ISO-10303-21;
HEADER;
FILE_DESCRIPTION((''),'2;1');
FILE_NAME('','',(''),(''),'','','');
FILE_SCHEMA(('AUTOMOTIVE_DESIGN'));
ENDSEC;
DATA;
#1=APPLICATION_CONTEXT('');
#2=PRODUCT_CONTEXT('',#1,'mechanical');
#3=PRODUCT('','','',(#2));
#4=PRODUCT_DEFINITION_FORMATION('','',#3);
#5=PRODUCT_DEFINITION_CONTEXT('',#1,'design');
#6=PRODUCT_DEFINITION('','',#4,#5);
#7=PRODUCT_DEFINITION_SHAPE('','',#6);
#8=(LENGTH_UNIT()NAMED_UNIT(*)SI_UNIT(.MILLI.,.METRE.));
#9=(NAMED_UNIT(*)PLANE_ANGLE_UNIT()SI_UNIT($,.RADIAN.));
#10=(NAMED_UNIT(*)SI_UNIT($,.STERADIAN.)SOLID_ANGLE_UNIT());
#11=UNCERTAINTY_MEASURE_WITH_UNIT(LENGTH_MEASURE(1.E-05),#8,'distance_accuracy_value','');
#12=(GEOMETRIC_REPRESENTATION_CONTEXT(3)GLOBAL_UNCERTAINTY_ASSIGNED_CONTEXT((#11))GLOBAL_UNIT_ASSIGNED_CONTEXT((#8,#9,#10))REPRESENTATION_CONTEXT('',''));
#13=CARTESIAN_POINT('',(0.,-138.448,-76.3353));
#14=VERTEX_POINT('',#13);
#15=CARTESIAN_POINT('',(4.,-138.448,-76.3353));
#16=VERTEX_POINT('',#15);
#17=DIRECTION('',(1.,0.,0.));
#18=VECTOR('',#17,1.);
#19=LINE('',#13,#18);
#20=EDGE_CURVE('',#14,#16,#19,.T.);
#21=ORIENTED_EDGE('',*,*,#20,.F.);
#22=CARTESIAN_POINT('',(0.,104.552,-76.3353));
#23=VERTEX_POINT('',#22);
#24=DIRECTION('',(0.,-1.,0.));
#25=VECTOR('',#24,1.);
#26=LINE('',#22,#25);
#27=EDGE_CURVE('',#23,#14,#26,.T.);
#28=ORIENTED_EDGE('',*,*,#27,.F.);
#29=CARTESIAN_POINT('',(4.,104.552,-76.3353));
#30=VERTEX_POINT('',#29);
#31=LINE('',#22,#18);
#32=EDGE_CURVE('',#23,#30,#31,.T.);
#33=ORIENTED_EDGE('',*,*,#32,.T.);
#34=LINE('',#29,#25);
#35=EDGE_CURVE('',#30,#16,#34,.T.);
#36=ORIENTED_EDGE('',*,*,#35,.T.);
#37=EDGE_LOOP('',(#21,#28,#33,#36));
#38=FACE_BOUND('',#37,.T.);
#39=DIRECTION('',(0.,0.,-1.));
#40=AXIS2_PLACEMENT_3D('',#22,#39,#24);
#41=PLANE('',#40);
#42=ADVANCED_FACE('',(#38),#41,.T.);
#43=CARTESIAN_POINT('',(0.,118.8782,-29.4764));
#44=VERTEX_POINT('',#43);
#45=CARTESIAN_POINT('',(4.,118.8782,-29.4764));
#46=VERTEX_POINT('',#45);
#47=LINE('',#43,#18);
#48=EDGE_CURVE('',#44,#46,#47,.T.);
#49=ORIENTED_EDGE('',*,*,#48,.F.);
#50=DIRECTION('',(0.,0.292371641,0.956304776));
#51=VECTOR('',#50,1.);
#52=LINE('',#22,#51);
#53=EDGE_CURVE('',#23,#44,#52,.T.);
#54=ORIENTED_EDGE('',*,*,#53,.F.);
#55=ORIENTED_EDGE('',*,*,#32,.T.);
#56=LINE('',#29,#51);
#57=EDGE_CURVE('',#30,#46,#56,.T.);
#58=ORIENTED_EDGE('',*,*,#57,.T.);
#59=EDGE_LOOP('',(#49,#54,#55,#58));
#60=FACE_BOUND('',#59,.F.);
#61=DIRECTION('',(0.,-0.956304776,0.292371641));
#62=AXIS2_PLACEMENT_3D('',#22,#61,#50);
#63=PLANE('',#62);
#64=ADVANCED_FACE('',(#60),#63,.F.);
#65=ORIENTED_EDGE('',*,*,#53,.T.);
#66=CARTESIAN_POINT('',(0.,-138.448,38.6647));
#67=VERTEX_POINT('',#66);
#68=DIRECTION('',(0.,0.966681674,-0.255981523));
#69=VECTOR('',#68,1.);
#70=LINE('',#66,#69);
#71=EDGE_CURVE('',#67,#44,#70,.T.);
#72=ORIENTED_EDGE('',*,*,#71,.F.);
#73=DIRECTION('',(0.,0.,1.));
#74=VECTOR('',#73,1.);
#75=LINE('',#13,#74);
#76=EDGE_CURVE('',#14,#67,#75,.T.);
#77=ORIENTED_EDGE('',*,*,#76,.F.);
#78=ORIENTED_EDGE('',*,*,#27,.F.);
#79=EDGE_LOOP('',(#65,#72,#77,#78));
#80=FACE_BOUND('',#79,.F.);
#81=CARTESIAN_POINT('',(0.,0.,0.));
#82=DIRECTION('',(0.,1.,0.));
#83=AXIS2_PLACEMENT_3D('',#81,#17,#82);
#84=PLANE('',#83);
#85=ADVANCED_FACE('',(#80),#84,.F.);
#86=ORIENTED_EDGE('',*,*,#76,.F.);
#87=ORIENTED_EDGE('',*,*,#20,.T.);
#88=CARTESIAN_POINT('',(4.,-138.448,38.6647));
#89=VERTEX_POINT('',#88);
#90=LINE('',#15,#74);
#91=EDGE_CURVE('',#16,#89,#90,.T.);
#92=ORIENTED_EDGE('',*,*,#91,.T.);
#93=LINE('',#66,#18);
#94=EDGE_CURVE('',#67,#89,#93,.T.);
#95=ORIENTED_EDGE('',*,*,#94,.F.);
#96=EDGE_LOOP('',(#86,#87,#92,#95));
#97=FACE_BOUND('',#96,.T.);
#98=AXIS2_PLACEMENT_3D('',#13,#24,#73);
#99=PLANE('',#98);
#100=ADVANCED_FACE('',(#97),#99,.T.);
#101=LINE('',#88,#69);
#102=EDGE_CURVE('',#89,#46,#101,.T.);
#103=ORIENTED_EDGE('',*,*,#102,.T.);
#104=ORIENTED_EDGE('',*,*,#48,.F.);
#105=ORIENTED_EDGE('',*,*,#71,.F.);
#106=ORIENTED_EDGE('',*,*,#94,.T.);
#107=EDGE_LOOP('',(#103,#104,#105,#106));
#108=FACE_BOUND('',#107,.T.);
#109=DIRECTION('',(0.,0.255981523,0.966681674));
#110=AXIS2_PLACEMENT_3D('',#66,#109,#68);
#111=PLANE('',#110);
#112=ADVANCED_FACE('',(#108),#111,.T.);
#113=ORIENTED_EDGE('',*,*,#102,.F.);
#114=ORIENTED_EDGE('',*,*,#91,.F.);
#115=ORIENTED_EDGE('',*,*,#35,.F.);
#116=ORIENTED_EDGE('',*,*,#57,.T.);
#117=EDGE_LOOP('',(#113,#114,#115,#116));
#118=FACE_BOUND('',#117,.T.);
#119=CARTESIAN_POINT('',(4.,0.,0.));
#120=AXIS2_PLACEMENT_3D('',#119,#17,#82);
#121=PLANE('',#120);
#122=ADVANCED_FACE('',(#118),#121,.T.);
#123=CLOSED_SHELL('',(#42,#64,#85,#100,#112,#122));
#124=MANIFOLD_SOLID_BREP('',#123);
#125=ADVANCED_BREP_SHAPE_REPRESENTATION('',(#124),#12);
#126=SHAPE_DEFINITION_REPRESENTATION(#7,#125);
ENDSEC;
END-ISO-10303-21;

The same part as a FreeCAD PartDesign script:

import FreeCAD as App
import Part
import Sketcher

V = App.Vector
Q = App.Units.Quantity

doc = App.newDocument("Part")
body = doc.addObject("PartDesign::Body", "Body")

# Sketch on YZ plane
sketch1 = body.newObject("Sketcher::SketchObject", "Sketch")
sketch1.AttachmentSupport = (doc.getObject("YZ_Plane"), [""])
sketch1.MapMode = "FlatFace"
sketch1.addGeometry([
    Part.LineSegment(V(-138.448, -76.3353, 0), V(104.552, -76.3353, 0)),
    Part.LineSegment(V(104.552, -76.3353, 0), V(118.8782, -29.4764, 0)),
    Part.LineSegment(V(118.8782, -29.4764, 0), V(-138.448, 38.6647, 0)),
    Part.LineSegment(V(-138.448, 38.6647, 0), V(-138.448, -76.3353, 0)),
], False)
sketch1.addConstraint([
    Sketcher.Constraint("Coincident", 0, 2, 1, 1),
    Sketcher.Constraint("Coincident", 1, 2, 2, 1),
    Sketcher.Constraint("Coincident", 2, 2, 3, 1),
    Sketcher.Constraint("Coincident", 3, 2, 0, 1),
    Sketcher.Constraint("Horizontal", 0),
    Sketcher.Constraint("Vertical", 3),
    Sketcher.Constraint("DistanceX", 0, 1, 0, 2, 243.0),
    Sketcher.Constraint("DistanceY", 3, 2, 3, 1, 115.0),
    Sketcher.Constraint("Distance", 1, 49.0),
    Sketcher.Constraint("Angle", 1, Q("73 deg")),
    Sketcher.Constraint("DistanceX", -1, 1, 0, 2, 104.552),
    Sketcher.Constraint("DistanceY", 0, 2, -1, 1, 76.3353),
])
pad1 = body.newObject("PartDesign::Pad", "Pad")
pad1.Profile = sketch1
pad1.Length = 4

doc.recompute()
